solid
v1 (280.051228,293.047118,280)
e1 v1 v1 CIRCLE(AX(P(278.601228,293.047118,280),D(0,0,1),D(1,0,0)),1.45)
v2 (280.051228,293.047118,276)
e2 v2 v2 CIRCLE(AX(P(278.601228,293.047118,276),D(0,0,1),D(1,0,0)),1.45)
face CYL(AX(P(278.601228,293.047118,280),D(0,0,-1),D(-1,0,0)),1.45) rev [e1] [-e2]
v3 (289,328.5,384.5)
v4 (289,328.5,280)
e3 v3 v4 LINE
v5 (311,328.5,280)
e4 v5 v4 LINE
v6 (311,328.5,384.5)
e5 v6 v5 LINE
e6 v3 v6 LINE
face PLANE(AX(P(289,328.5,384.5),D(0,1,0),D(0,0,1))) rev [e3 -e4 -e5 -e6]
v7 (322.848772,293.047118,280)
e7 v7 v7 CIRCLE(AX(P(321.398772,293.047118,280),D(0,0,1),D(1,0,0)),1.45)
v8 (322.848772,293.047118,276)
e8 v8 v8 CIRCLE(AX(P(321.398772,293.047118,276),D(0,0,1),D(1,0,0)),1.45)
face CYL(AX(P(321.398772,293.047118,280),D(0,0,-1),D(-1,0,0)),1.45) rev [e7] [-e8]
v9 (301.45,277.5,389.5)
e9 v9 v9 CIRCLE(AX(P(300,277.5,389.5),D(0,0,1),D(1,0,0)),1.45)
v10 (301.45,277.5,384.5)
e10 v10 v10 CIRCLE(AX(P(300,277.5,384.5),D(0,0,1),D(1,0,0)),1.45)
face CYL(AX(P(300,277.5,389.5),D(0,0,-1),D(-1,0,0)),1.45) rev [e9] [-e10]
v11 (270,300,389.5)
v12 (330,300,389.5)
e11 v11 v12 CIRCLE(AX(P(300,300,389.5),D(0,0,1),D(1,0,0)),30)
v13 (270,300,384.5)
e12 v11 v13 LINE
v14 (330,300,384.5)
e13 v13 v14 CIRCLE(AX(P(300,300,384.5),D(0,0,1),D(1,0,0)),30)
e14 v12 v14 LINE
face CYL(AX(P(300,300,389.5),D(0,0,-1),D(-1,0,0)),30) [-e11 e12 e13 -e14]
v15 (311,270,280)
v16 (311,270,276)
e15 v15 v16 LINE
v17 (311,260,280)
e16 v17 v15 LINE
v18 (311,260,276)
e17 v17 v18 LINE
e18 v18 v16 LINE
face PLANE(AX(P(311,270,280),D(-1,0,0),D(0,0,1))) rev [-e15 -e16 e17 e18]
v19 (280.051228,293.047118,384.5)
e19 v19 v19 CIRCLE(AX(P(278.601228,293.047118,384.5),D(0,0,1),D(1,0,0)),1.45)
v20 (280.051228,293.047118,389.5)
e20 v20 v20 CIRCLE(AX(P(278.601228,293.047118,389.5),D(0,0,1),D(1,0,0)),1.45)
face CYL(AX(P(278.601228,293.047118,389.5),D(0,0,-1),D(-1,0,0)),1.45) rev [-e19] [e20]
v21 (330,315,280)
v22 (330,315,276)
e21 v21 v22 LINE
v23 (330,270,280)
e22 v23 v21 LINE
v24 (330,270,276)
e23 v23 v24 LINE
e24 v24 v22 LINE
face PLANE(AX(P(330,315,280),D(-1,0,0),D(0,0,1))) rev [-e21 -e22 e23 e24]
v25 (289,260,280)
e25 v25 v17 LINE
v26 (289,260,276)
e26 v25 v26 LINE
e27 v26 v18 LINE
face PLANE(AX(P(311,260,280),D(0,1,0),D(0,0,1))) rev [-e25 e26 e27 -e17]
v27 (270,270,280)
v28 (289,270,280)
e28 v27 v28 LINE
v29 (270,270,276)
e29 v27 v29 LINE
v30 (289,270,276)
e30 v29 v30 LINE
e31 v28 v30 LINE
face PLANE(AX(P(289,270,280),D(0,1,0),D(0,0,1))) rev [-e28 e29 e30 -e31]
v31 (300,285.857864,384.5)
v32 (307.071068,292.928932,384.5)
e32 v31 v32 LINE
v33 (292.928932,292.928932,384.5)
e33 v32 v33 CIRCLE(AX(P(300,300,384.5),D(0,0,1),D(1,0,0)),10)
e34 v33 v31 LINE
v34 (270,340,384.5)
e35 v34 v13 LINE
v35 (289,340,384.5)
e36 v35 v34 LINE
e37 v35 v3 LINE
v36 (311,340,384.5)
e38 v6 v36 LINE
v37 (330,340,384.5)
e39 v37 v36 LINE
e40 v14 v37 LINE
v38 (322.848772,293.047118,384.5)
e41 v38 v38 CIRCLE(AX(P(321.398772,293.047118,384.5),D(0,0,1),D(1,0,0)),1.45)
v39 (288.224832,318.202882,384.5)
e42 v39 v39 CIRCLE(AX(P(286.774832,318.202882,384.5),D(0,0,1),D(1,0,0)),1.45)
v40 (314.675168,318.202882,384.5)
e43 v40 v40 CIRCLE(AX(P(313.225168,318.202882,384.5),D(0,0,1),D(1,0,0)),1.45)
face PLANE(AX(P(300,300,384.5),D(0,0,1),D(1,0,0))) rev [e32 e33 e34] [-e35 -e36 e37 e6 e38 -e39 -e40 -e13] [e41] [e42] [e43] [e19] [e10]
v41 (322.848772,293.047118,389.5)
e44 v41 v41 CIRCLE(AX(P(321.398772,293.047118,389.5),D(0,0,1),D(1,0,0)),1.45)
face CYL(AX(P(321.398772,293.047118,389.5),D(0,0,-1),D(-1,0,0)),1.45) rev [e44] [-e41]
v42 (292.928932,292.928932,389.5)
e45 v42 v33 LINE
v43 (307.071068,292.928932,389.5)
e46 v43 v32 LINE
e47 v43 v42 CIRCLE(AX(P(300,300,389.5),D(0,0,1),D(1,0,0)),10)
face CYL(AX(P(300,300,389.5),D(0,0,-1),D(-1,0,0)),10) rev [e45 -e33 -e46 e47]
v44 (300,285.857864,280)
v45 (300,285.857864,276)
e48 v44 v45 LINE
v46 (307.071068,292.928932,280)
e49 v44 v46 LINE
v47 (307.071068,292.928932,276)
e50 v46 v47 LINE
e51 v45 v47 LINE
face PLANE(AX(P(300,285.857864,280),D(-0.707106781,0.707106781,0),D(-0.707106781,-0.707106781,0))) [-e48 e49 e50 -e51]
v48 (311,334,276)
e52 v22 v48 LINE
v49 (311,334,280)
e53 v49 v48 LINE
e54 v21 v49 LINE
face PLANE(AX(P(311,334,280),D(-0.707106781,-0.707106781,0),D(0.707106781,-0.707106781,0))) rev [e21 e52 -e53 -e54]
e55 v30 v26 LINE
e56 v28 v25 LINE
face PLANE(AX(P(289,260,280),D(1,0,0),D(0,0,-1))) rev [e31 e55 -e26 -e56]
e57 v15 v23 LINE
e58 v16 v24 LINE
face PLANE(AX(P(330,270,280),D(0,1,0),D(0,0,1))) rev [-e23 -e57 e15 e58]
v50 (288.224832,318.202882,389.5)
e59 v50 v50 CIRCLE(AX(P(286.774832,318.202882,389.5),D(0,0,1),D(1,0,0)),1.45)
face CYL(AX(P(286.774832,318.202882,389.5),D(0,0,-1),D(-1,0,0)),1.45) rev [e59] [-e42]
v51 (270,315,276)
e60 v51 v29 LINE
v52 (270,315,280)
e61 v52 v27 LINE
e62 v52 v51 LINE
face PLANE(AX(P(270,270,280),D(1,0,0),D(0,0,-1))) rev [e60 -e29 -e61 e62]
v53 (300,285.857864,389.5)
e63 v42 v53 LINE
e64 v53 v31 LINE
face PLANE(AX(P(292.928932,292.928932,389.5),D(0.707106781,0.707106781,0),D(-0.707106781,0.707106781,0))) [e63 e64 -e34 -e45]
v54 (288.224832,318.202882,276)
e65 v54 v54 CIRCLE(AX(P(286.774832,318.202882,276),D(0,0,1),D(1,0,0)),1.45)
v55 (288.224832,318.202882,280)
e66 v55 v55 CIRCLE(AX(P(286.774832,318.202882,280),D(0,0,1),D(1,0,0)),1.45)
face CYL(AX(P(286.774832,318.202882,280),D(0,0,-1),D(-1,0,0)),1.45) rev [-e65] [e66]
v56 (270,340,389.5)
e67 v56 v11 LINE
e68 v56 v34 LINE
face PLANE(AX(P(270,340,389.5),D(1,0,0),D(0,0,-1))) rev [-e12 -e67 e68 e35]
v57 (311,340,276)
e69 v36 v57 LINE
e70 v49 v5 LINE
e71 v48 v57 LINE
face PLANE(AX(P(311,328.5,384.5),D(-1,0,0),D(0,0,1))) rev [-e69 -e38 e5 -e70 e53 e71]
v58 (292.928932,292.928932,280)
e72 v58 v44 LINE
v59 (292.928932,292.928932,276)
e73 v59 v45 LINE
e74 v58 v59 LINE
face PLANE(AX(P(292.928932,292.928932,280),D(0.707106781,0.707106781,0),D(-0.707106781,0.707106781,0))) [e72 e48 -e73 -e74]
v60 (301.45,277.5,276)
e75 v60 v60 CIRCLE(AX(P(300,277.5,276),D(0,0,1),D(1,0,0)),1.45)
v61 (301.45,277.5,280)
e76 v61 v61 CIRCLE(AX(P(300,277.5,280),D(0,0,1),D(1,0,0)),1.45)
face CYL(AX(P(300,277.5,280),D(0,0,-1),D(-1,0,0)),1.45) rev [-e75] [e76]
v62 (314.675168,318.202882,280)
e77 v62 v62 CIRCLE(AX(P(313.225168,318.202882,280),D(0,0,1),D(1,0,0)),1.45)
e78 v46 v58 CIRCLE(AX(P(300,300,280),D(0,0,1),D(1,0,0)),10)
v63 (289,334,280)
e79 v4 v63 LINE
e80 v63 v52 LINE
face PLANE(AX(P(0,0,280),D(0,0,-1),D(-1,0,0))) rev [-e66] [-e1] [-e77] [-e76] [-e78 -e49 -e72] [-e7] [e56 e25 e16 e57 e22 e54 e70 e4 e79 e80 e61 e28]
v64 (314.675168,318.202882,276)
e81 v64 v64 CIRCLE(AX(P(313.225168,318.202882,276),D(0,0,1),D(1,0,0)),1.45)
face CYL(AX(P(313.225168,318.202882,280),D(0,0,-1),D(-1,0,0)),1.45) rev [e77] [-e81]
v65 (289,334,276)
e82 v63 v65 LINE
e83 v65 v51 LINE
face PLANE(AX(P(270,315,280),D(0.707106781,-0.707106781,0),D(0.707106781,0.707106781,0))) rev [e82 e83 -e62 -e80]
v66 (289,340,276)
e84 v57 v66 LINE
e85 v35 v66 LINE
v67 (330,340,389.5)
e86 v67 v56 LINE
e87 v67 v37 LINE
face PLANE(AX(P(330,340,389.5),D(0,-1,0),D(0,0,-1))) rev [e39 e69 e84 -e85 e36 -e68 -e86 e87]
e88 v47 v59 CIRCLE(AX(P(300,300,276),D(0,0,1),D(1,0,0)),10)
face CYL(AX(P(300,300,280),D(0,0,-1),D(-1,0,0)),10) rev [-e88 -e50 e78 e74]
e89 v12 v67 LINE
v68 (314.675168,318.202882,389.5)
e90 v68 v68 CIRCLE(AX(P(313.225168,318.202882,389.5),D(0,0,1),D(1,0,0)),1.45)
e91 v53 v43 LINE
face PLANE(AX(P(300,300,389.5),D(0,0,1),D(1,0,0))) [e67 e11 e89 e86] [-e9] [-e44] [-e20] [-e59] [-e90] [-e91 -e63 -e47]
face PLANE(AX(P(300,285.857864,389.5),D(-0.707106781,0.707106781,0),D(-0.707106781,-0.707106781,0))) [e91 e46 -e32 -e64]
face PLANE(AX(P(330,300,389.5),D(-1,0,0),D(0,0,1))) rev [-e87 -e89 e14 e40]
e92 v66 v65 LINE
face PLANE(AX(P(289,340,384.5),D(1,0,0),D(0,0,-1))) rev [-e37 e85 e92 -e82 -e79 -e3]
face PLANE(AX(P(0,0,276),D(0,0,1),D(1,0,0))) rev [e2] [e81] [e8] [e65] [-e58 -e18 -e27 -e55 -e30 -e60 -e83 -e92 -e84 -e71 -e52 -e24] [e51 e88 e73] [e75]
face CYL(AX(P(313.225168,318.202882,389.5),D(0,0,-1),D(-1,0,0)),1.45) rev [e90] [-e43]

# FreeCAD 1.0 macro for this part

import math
import FreeCAD as App
import Part
import Sketcher
from FreeCAD import Vector
Q = App.Units.Quantity

doc = App.newDocument("Part")
params = doc.addObject("Spreadsheet::Sheet", "Params")
for row, (alias, value) in enumerate([
    ("sketch1_diameter", "60 mm"),
    ("pad1_length", "5 mm"),
    ("sketch2_width", "60 mm"),
    ("sketch2_height", "40 mm"),
    ("pad2_length", "5 mm"),
    ("sketch3_radius", "10 mm"),
    ("sketch3_diameter", "2.9 mm"),
    ("pocket1_length", "5 mm"),
    ("sketch4_radius", "10 mm"),
    ("sketch4_diameter", "2.9 mm"),
    ("sketch4_width", "22 mm"),
    ("sketch4_width2", "19 mm"),
    ("sketch4_height", "6 mm"),
    ("pad3_length", "4 mm"),
    ("sketch5_width", "22 mm"),
    ("sketch5_height", "11.5 mm"),
    ("pad4_length", "108.5 mm"),
], start=1):
    params.set(f"A{row}", alias)
    params.set(f"B{row}", "=" + value)
    params.setAlias(f"B{row}", alias)

body = doc.addObject("PartDesign::Body", "Body")

# Sketch on XY plane
sketch1 = doc.addObject("Sketcher::SketchObject", "Sketch")
body.addObject(sketch1)
sketch1.AttachmentSupport = (doc.XY_Plane, [""])
sketch1.MapMode = "FlatFace"
sketch1.AttachmentOffset = App.Placement(Vector(0, 0, 384.5), App.Rotation())
sketch1.addGeometry(Part.Circle(Vector(300, 300, 0), Vector(0, 0, 1), 30), False)
sketch1.addConstraint(Sketcher.Constraint("Diameter", 0, Q("60 mm")))
sketch1.addConstraint(Sketcher.Constraint("DistanceX", -1, 1, 0, 3, Q("300 mm")))
sketch1.addConstraint(Sketcher.Constraint("DistanceY", -1, 1, 0, 3, Q("300 mm")))
sketch1.setExpression("Constraints[0]", "Params.sketch1_diameter")
pad1 = doc.addObject("PartDesign::Pad", "Pad")
body.addObject(pad1)
pad1.Profile = sketch1
pad1.setExpression("Length", "Params.pad1_length")

# Sketch on XY plane
sketch2 = doc.addObject("Sketcher::SketchObject", "Sketch001")
body.addObject(sketch2)
sketch2.AttachmentSupport = (doc.XY_Plane, [""])
sketch2.MapMode = "FlatFace"
sketch2.AttachmentOffset = App.Placement(Vector(0, 0, 384.5), App.Rotation())
sketch2.addGeometry(Part.LineSegment(Vector(270, 340, 0), Vector(270, 300, 0)), False)
sketch2.addGeometry(Part.LineSegment(Vector(270, 300, 0), Vector(330, 300, 0)), False)
sketch2.addGeometry(Part.LineSegment(Vector(330, 300, 0), Vector(330, 340, 0)), False)
sketch2.addGeometry(Part.LineSegment(Vector(330, 340, 0), Vector(270, 340, 0)), False)
sketch2.addConstraint(Sketcher.Constraint("Coincident", 0, 2, 1, 1))
sketch2.addConstraint(Sketcher.Constraint("Coincident", 1, 2, 2, 1))
sketch2.addConstraint(Sketcher.Constraint("Coincident", 2, 2, 3, 1))
sketch2.addConstraint(Sketcher.Constraint("Coincident", 3, 2, 0, 1))
sketch2.addConstraint(Sketcher.Constraint("Vertical", 0))
sketch2.addConstraint(Sketcher.Constraint("Horizontal", 1))
sketch2.addConstraint(Sketcher.Constraint("Vertical", 2))
sketch2.addConstraint(Sketcher.Constraint("Horizontal", 3))
sketch2.addConstraint(Sketcher.Constraint("DistanceX", 1, 1, 1, 2, Q("60 mm")))
sketch2.addConstraint(Sketcher.Constraint("DistanceY", 0, 2, 0, 1, Q("40 mm")))
sketch2.addConstraint(Sketcher.Constraint("DistanceX", -1, 1, 0, 2, Q("270 mm")))
sketch2.addConstraint(Sketcher.Constraint("DistanceY", -1, 1, 0, 2, Q("300 mm")))
sketch2.setExpression("Constraints[8]", "Params.sketch2_width")
sketch2.setExpression("Constraints[9]", "Params.sketch2_height")
pad2 = doc.addObject("PartDesign::Pad", "Pad001")
body.addObject(pad2)
pad2.Profile = sketch2
pad2.setExpression("Length", "Params.pad2_length")

# Sketch on XY plane
sketch3 = doc.addObject("Sketcher::SketchObject", "Sketch002")
body.addObject(sketch3)
sketch3.AttachmentSupport = (doc.XY_Plane, [""])
sketch3.MapMode = "FlatFace"
sketch3.AttachmentOffset = App.Placement(Vector(0, 0, 384.5), App.Rotation())
sketch3.addGeometry(Part.Circle(Vector(286.774832, 318.202882, 0), Vector(0, 0, 1), 1.45), False)
sketch3.addGeometry(Part.Circle(Vector(278.601228, 293.047118, 0), Vector(0, 0, 1), 1.45), False)
sketch3.addGeometry(Part.Circle(Vector(300, 277.5, 0), Vector(0, 0, 1), 1.45), False)
sketch3.addGeometry(Part.Circle(Vector(321.398772, 293.047118, 0), Vector(0, 0, 1), 1.45), False)
sketch3.addGeometry(Part.Circle(Vector(313.225168, 318.202882, 0), Vector(0, 0, 1), 1.45), False)
sketch3.addGeometry(Part.LineSegment(Vector(292.928932, 292.928932, 0), Vector(300, 285.857864, 0)), False)
sketch3.addGeometry(Part.LineSegment(Vector(300, 285.857864, 0), Vector(307.071068, 292.928932, 0)), False)
sketch3.addGeometry(Part.ArcOfCircle(Part.Circle(Vector(300, 300, 0), Vector(0, 0, 1), 10), math.radians(-45), math.radians(225)), False)
sketch3.addConstraint(Sketcher.Constraint("Coincident", 5, 2, 6, 1))
sketch3.addConstraint(Sketcher.Constraint("Tangent", 6, 2, 7, 1))
sketch3.addConstraint(Sketcher.Constraint("Tangent", 7, 2, 5, 1))
sketch3.addConstraint(Sketcher.Constraint("Equal", 0, 1))
sketch3.addConstraint(Sketcher.Constraint("Equal", 1, 2))
sketch3.addConstraint(Sketcher.Constraint("Equal", 2, 3))
sketch3.addConstraint(Sketcher.Constraint("Equal", 3, 4))
sketch3.addConstraint(Sketcher.Constraint("Perpendicular", 5, 6))
sketch3.addConstraint(Sketcher.Constraint("Horizontal", 1, 3, 3, 3))
sketch3.addConstraint(Sketcher.Constraint("Horizontal", 0, 3, 4, 3))
sketch3.addConstraint(Sketcher.Constraint("Horizontal", 6, 2, 7, 2))
sketch3.addConstraint(Sketcher.Constraint("Vertical", 2, 3, 7, 3))
sketch3.addConstraint(Sketcher.Constraint("Radius", 7, Q("10 mm")))
sketch3.addConstraint(Sketcher.Constraint("Diameter", 0, Q("2.9 mm")))
sketch3.addConstraint(Sketcher.Constraint("DistanceX", -1, 1, 2, 3, Q("300 mm")))
sketch3.addConstraint(Sketcher.Constraint("DistanceY", -1, 1, 7, 3, Q("300 mm")))
sketch3.addConstraint(Sketcher.Constraint("DistanceY", -1, 1, 2, 3, Q("277.5 mm")))
sketch3.addConstraint(Sketcher.Constraint("DistanceX", 6, 2, 4, 3, Q("6.1541 mm")))
sketch3.addConstraint(Sketcher.Constraint("DistanceX", -1, 1, 0, 3, Q("286.774832 mm")))
sketch3.addConstraint(Sketcher.Constraint("DistanceX", -1, 1, 1, 3, Q("278.601228 mm")))
sketch3.addConstraint(Sketcher.Constraint("DistanceX", -1, 1, 3, 3, Q("321.398772 mm")))
sketch3.addConstraint(Sketcher.Constraint("DistanceY", 6, 2, 4, 3, Q("25.27395 mm")))
sketch3.addConstraint(Sketcher.Constraint("DistanceY", -1, 1, 1, 3, Q("293.047118 mm")))
sketch3.setExpression("Constraints[12]", "Params.sketch3_radius")
sketch3.setExpression("Constraints[13]", "Params.sketch3_diameter")
pocket1 = doc.addObject("PartDesign::Pocket", "Pocket")
body.addObject(pocket1)
pocket1.Profile = sketch3
pocket1.setExpression("Length", "Params.pocket1_length")
pocket1.Reversed = True
body2 = doc.addObject("PartDesign::Body", "Body001")

# Sketch on XY plane
sketch4 = doc.addObject("Sketcher::SketchObject", "Sketch003")
body2.addObject(sketch4)
sketch4.AttachmentSupport = (doc.getObject("XY_Plane001"), [""])
sketch4.MapMode = "FlatFace"
sketch4.AttachmentOffset = App.Placement(Vector(0, 0, 276), App.Rotation())
sketch4.addGeometry(Part.LineSegment(Vector(311, 340, 0), Vector(289, 340, 0)), False)
sketch4.addGeometry(Part.LineSegment(Vector(289, 340, 0), Vector(289, 334, 0)), False)
sketch4.addGeometry(Part.LineSegment(Vector(289, 334, 0), Vector(270, 315, 0)), False)
sketch4.addGeometry(Part.LineSegment(Vector(270, 315, 0), Vector(270, 270, 0)), False)
sketch4.addGeometry(Part.LineSegment(Vector(270, 270, 0), Vector(289, 270, 0)), False)
sketch4.addGeometry(Part.LineSegment(Vector(289, 270, 0), Vector(289, 260, 0)), False)
sketch4.addGeometry(Part.LineSegment(Vector(289, 260, 0), Vector(311, 260, 0)), False)
sketch4.addGeometry(Part.LineSegment(Vector(311, 260, 0), Vector(311, 270, 0)), False)
sketch4.addGeometry(Part.LineSegment(Vector(311, 270, 0), Vector(330, 270, 0)), False)
sketch4.addGeometry(Part.LineSegment(Vector(330, 270, 0), Vector(330, 315, 0)), False)
sketch4.addGeometry(Part.LineSegment(Vector(330, 315, 0), Vector(311, 334, 0)), False)
sketch4.addGeometry(Part.LineSegment(Vector(311, 334, 0), Vector(311, 340, 0)), False)
sketch4.addGeometry(Part.Circle(Vector(300, 277.5, 0), Vector(0, 0, 1), 1.45), False)
sketch4.addGeometry(Part.Circle(Vector(321.398772, 293.047118, 0), Vector(0, 0, 1), 1.45), False)
sketch4.addGeometry(Part.Circle(Vector(278.601228, 293.047118, 0), Vector(0, 0, 1), 1.45), False)
sketch4.addGeometry(Part.ArcOfCircle(Part.Circle(Vector(300, 300, 0), Vector(0, 0, 1), 10), math.radians(-45), math.radians(225)), False)
sketch4.addGeometry(Part.LineSegment(Vector(307.071068, 292.928932, 0), Vector(300, 285.857864, 0)), False)
sketch4.addGeometry(Part.LineSegment(Vector(300, 285.857864, 0), Vector(292.928932, 292.928932, 0)), False)
sketch4.addGeometry(Part.Circle(Vector(313.225168, 318.202882, 0), Vector(0, 0, 1), 1.45), False)
sketch4.addGeometry(Part.Circle(Vector(286.774832, 318.202882, 0), Vector(0, 0, 1), 1.45), False)
sketch4.addConstraint(Sketcher.Constraint("Coincident", 0, 2, 1, 1))
sketch4.addConstraint(Sketcher.Constraint("Coincident", 1, 2, 2, 1))
sketch4.addConstraint(Sketcher.Constraint("Coincident", 2, 2, 3, 1))
sketch4.addConstraint(Sketcher.Constraint("Coincident", 3, 2, 4, 1))
sketch4.addConstraint(Sketcher.Constraint("Coincident", 4, 2, 5, 1))
sketch4.addConstraint(Sketcher.Constraint("Coincident", 5, 2, 6, 1))
sketch4.addConstraint(Sketcher.Constraint("Coincident", 6, 2, 7, 1))
sketch4.addConstraint(Sketcher.Constraint("Coincident", 7, 2, 8, 1))
sketch4.addConstraint(Sketcher.Constraint("Coincident", 8, 2, 9, 1))
sketch4.addConstraint(Sketcher.Constraint("Coincident", 9, 2, 10, 1))
sketch4.addConstraint(Sketcher.Constraint("Coincident", 10, 2, 11, 1))
sketch4.addConstraint(Sketcher.Constraint("Coincident", 11, 2, 0, 1))
sketch4.addConstraint(Sketcher.Constraint("Tangent", 15, 1, 16, 1))
sketch4.addConstraint(Sketcher.Constraint("Coincident", 16, 2, 17, 1))
sketch4.addConstraint(Sketcher.Constraint("Tangent", 17, 2, 15, 2))
sketch4.addConstraint(Sketcher.Constraint("Horizontal", 0))
sketch4.addConstraint(Sketcher.Constraint("Vertical", 1))
sketch4.addConstraint(Sketcher.Constraint("Vertical", 3))
sketch4.addConstraint(Sketcher.Constraint("Horizontal", 4))
sketch4.addConstraint(Sketcher.Constraint("Vertical", 5))
sketch4.addConstraint(Sketcher.Constraint("Horizontal", 6))
sketch4.addConstraint(Sketcher.Constraint("Vertical", 7))
sketch4.addConstraint(Sketcher.Constraint("Horizontal", 8))
sketch4.addConstraint(Sketcher.Constraint("Vertical", 9))
sketch4.addConstraint(Sketcher.Constraint("Vertical", 11))
sketch4.addConstraint(Sketcher.Constraint("Equal", 12, 13))
sketch4.addConstraint(Sketcher.Constraint("Equal", 13, 14))
sketch4.addConstraint(Sketcher.Constraint("Equal", 14, 18))
sketch4.addConstraint(Sketcher.Constraint("Equal", 18, 19))
sketch4.addConstraint(Sketcher.Constraint("Perpendicular", 2, 10))
sketch4.addConstraint(Sketcher.Constraint("Perpendicular", 10, 16))
sketch4.addConstraint(Sketcher.Constraint("Perpendicular", 16, 17))
sketch4.addConstraint(Sketcher.Constraint("Horizontal", 13, 3, 14, 3))
sketch4.addConstraint(Sketcher.Constraint("Horizontal", 18, 3, 19, 3))
sketch4.addConstraint(Sketcher.Constraint("Horizontal", 4, 2, 7, 2))
sketch4.addConstraint(Sketcher.Constraint("Horizontal", 2, 2, 9, 2))
sketch4.addConstraint(Sketcher.Constraint("Horizontal", 1, 2, 10, 2))
sketch4.addConstraint(Sketcher.Constraint("Horizontal", 15, 1, 17, 2))
sketch4.addConstraint(Sketcher.Constraint("Vertical", 12, 3, 15, 3))
sketch4.addConstraint(Sketcher.Constraint("Vertical", 1, 2, 4, 2))
sketch4.addConstraint(Sketcher.Constraint("Vertical", 7, 2, 10, 2))
sketch4.addConstraint(Sketcher.Constraint("Radius", 15, Q("10 mm")))
sketch4.addConstraint(Sketcher.Constraint("Diameter", 12, Q("2.9 mm")))
sketch4.addConstraint(Sketcher.Constraint("DistanceX", 0, 2, 0, 1, Q("22 mm")))
sketch4.addConstraint(Sketcher.Constraint("DistanceX", 4, 1, 4, 2, Q("19 mm")))
sketch4.addConstraint(Sketcher.Constraint("DistanceY", 1, 2, 1, 1, Q("6 mm")))
sketch4.addConstraint(Sketcher.Constraint("DistanceY", 3, 2, 3, 1, Q("45 mm")))
sketch4.addConstraint(Sketcher.Constraint("DistanceY", 5, 2, 5, 1, Q("10 mm")))
sketch4.addConstraint(Sketcher.Constraint("DistanceX", -1, 1, 12, 3, Q("300 mm")))
sketch4.addConstraint(Sketcher.Constraint("DistanceY", -1, 1, 15, 3, Q("300 mm")))
sketch4.addConstraint(Sketcher.Constraint("DistanceX", -1, 1, 0, 2, Q("289 mm")))
sketch4.addConstraint(Sketcher.Constraint("DistanceY", -1, 1, 0, 2, Q("340 mm")))
sketch4.addConstraint(Sketcher.Constraint("DistanceY", -1, 1, 12, 3, Q("277.5 mm")))
sketch4.addConstraint(Sketcher.Constraint("DistanceX", 15, 1, 18, 3, Q("6.1541 mm")))
sketch4.addConstraint(Sketcher.Constraint("DistanceX", -1, 1, 13, 3, Q("321.398772 mm")))
sketch4.addConstraint(Sketcher.Constraint("DistanceX", -1, 1, 14, 3, Q("278.601228 mm")))
sketch4.addConstraint(Sketcher.Constraint("DistanceX", -1, 1, 19, 3, Q("286.774832 mm")))
sketch4.addConstraint(Sketcher.Constraint("DistanceY", 15, 1, 18, 3, Q("25.27395 mm")))
sketch4.addConstraint(Sketcher.Constraint("DistanceY", -1, 1, 13, 3, Q("293.047118 mm")))
sketch4.setExpression("Constraints[41]", "Params.sketch4_radius")
sketch4.setExpression("Constraints[42]", "Params.sketch4_diameter")
sketch4.setExpression("Constraints[43]", "Params.sketch4_width")
sketch4.setExpression("Constraints[44]", "Params.sketch4_width2")
sketch4.setExpression("Constraints[45]", "Params.sketch4_height")
pad3 = doc.addObject("PartDesign::Pad", "Pad002")
body2.addObject(pad3)
pad3.Profile = sketch4
pad3.setExpression("Length", "Params.pad3_length")
body.AllowCompound = True
doc.recompute()

boolean = doc.addObject("PartDesign::Boolean", "Boolean")
body.addObject(boolean)
boolean.Type = "Fuse"
boolean.addObjects([body2])

# Sketch on XY plane
sketch5 = doc.addObject("Sketcher::SketchObject", "Sketch004")
body.addObject(sketch5)
sketch5.AttachmentSupport = (doc.XY_Plane, [""])
sketch5.MapMode = "FlatFace"
sketch5.AttachmentOffset = App.Placement(Vector(0, 0, 276), App.Rotation())
sketch5.addGeometry(Part.LineSegment(Vector(289, 340, 0), Vector(289, 328.5, 0)), False)
sketch5.addGeometry(Part.LineSegment(Vector(289, 328.5, 0), Vector(311, 328.5, 0)), False)
sketch5.addGeometry(Part.LineSegment(Vector(311, 328.5, 0), Vector(311, 340, 0)), False)
sketch5.addGeometry(Part.LineSegment(Vector(311, 340, 0), Vector(289, 340, 0)), False)
sketch5.addConstraint(Sketcher.Constraint("Coincident", 0, 2, 1, 1))
sketch5.addConstraint(Sketcher.Constraint("Coincident", 1, 2, 2, 1))
sketch5.addConstraint(Sketcher.Constraint("Coincident", 2, 2, 3, 1))
sketch5.addConstraint(Sketcher.Constraint("Coincident", 3, 2, 0, 1))
sketch5.addConstraint(Sketcher.Constraint("Vertical", 0))
sketch5.addConstraint(Sketcher.Constraint("Horizontal", 1))
sketch5.addConstraint(Sketcher.Constraint("Vertical", 2))
sketch5.addConstraint(Sketcher.Constraint("Horizontal", 3))
sketch5.addConstraint(Sketcher.Constraint("DistanceX", 1, 1, 1, 2, Q("22 mm")))
sketch5.addConstraint(Sketcher.Constraint("DistanceY", 0, 2, 0, 1, Q("11.5 mm")))
sketch5.addConstraint(Sketcher.Constraint("DistanceX", -1, 1, 0, 2, Q("289 mm")))
sketch5.addConstraint(Sketcher.Constraint("DistanceY", -1, 1, 2, 2, Q("340 mm")))
sketch5.setExpression("Constraints[8]", "Params.sketch5_width")
sketch5.setExpression("Constraints[9]", "Params.sketch5_height")
pad4 = doc.addObject("PartDesign::Pad", "Pad003")
body.addObject(pad4)
pad4.Profile = sketch5
pad4.setExpression("Length", "Params.pad4_length")

doc.recompute()
